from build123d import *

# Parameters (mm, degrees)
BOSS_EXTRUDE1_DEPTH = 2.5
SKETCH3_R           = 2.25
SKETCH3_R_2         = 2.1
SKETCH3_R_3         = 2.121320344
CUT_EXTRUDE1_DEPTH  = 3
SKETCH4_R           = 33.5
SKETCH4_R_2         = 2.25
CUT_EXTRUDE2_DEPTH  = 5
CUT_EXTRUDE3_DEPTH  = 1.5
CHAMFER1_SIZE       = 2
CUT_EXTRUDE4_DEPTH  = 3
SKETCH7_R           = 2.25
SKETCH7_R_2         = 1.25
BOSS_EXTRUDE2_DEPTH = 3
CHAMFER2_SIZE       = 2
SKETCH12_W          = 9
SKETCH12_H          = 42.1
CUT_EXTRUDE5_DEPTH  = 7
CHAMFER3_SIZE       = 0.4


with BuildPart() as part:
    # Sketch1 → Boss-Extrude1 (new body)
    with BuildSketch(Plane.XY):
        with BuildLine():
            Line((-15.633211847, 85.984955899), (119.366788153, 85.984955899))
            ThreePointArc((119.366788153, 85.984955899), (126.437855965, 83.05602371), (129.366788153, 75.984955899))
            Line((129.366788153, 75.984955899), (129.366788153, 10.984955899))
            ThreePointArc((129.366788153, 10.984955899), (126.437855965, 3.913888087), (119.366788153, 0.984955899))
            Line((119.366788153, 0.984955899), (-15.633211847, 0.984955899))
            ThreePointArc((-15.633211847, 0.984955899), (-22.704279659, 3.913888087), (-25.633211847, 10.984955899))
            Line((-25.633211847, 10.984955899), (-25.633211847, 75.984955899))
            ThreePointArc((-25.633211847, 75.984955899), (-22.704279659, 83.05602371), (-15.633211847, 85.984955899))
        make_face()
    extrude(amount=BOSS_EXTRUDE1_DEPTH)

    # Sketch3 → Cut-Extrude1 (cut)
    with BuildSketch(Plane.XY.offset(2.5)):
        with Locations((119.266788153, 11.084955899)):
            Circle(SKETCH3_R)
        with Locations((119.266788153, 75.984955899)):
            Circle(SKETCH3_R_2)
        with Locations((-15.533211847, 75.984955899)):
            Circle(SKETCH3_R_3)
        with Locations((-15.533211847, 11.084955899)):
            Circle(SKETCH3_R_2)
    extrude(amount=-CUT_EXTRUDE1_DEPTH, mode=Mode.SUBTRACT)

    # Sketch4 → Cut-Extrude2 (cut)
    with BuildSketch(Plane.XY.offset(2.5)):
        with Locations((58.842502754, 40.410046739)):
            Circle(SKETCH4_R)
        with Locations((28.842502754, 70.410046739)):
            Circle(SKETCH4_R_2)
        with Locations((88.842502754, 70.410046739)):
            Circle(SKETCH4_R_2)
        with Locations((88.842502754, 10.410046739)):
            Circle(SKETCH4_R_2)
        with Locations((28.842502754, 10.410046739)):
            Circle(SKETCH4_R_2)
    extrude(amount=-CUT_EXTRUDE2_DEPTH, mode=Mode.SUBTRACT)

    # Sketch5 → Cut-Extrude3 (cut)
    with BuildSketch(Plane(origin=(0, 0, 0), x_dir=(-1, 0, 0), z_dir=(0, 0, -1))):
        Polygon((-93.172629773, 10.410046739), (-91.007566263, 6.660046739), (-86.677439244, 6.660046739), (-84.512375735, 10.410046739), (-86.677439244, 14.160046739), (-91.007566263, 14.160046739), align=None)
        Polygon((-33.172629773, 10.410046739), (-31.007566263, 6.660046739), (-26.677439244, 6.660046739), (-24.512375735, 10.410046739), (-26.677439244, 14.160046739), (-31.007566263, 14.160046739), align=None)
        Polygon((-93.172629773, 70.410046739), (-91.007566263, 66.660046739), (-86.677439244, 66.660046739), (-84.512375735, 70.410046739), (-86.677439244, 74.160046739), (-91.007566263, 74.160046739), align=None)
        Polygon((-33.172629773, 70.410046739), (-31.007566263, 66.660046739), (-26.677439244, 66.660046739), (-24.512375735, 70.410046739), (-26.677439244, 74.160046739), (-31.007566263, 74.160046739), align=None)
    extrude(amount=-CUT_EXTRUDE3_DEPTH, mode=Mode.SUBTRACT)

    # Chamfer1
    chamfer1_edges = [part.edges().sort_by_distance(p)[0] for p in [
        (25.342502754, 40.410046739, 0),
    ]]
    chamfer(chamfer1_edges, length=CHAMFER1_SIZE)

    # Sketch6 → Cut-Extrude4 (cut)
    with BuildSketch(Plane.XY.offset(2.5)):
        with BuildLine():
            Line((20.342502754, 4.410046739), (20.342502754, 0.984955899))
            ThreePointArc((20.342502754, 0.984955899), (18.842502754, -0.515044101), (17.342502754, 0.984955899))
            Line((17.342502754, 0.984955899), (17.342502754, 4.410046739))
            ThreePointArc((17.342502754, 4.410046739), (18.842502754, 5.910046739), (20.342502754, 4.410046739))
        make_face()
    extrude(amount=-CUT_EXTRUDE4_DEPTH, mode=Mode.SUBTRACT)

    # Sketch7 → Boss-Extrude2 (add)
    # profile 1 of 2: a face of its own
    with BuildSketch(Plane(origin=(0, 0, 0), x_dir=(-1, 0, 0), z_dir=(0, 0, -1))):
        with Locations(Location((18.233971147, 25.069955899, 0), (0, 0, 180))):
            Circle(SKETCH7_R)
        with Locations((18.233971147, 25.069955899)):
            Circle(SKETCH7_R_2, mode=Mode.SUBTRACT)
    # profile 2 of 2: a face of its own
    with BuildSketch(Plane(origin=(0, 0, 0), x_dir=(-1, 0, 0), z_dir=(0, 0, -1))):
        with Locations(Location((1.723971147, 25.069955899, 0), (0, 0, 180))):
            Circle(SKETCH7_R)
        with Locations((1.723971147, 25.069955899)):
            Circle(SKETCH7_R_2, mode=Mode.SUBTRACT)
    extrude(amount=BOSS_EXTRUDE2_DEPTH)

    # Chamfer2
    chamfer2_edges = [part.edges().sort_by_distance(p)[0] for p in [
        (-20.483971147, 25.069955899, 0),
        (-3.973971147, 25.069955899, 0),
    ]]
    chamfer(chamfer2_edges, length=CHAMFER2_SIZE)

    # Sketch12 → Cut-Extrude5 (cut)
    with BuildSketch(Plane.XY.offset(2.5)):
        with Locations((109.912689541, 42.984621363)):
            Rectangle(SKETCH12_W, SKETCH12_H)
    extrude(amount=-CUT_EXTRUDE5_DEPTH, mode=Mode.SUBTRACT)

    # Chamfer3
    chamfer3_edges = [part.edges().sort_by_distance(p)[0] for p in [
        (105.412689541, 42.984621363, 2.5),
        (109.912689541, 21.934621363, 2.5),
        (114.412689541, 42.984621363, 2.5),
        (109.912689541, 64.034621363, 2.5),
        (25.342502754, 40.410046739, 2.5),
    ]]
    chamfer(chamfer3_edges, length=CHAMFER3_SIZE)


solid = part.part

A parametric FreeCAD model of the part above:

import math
import FreeCAD as App
import Part
import Sketcher

V = App.Vector
Q = App.Units.Quantity


def edges_at(feature, points):
    """Names of the edges that pass closest to the given points."""
    edges = feature.Shape.Edges
    near = lambda p: min(range(len(edges)), key=lambda i: edges[i].distToShape(Part.Vertex(*p))[0])
    return sorted({f"Edge{near(p) + 1}" for p in points})


def add_polygon(sketch, points):
    """Adds a closed chain of lines whose ends are joined by coincident constraints."""
    first, n = sketch.GeometryCount, len(points)
    for a, b in zip(points, points[1:] + points[:1]):
        sketch.addGeometry(Part.LineSegment(App.Vector(*a, 0), App.Vector(*b, 0)), False)
    for i in range(n):
        sketch.addConstraint(Sketcher.Constraint("Coincident", first + i, 2, first + (i + 1) % n, 1))

doc = App.newDocument("Part")
body = doc.addObject("PartDesign::Body", "Body")

# Sketch on XY plane
sketch1 = body.newObject("Sketcher::SketchObject", "Sketch")
sketch1.AttachmentSupport = (doc.getObject("XY_Plane"), [""])
sketch1.MapMode = "FlatFace"
sketch1.addGeometry(Part.LineSegment(V(119.366788, 85.984956, 0), V(-15.633212, 85.984956, 0)), False)
sketch1.addGeometry(Part.ArcOfCircle(Part.Circle(V(-15.633212, 75.984956, 0), V(0, 0, 1), 10), math.radians(90), math.radians(180)), False)
sketch1.addGeometry(Part.LineSegment(V(-25.633212, 75.984956, 0), V(-25.633212, 10.984956, 0)), False)
sketch1.addGeometry(Part.ArcOfCircle(Part.Circle(V(-15.633212, 10.984956, 0), V(0, 0, 1), 10), math.radians(180), math.radians(270)), False)
sketch1.addGeometry(Part.LineSegment(V(-15.633212, 0.984956, 0), V(119.366788, 0.984956, 0)), False)
sketch1.addGeometry(Part.ArcOfCircle(Part.Circle(V(119.366788, 10.984956, 0), V(0, 0, 1), 10), math.radians(-90), math.radians(0)), False)
sketch1.addGeometry(Part.LineSegment(V(129.366788, 10.984956, 0), V(129.366788, 75.984956, 0)), False)
sketch1.addGeometry(Part.ArcOfCircle(Part.Circle(V(119.366788, 75.984956, 0), V(0, 0, 1), 10), math.radians(0), math.radians(90)), False)
sketch1.addConstraint(Sketcher.Constraint("Tangent", 0, 2, 1, 1))
sketch1.addConstraint(Sketcher.Constraint("Tangent", 1, 2, 2, 1))
sketch1.addConstraint(Sketcher.Constraint("Tangent", 2, 2, 3, 1))
sketch1.addConstraint(Sketcher.Constraint("Tangent", 3, 2, 4, 1))
sketch1.addConstraint(Sketcher.Constraint("Tangent", 4, 2, 5, 1))
sketch1.addConstraint(Sketcher.Constraint("Tangent", 5, 2, 6, 1))
sketch1.addConstraint(Sketcher.Constraint("Tangent", 6, 2, 7, 1))
sketch1.addConstraint(Sketcher.Constraint("Tangent", 7, 2, 0, 1))
sketch1.addConstraint(Sketcher.Constraint("Horizontal", 0))
sketch1.addConstraint(Sketcher.Constraint("Vertical", 2))
sketch1.addConstraint(Sketcher.Constraint("Horizontal", 4))
sketch1.addConstraint(Sketcher.Constraint("Vertical", 6))
sketch1.addConstraint(Sketcher.Constraint("Equal", 1, 3))
sketch1.addConstraint(Sketcher.Constraint("Equal", 3, 5))
sketch1.addConstraint(Sketcher.Constraint("Equal", 5, 7))
sketch1.addConstraint(Sketcher.Constraint("Radius", 1, 10.0))
sketch1.addConstraint(Sketcher.Constraint("DistanceX", 0, 2, 0, 1, 135.0))
sketch1.addConstraint(Sketcher.Constraint("DistanceY", 2, 2, 2, 1, 65.0))
sketch1.addConstraint(Sketcher.Constraint("DistanceX", 1, 3, -1, 1, 15.633212))
sketch1.addConstraint(Sketcher.Constraint("DistanceY", -1, 1, 1, 3, 75.984956))
pad1 = body.newObject("PartDesign::Pad", "Pad")
pad1.Profile = sketch1
pad1.Length = 2.5

# Sketch on XY plane
sketch2 = body.newObject("Sketcher::SketchObject", "Sketch001")
sketch2.AttachmentSupport = (doc.getObject("XY_Plane"), [""])
sketch2.MapMode = "FlatFace"
sketch2.AttachmentOffset = App.Placement(V(0, 0, 2.5), App.Rotation())
sketch2.addGeometry(Part.Circle(V(119.266788, 11.084956, 0), V(0, 0, 1), 2.25), False)
sketch2.addGeometry(Part.Circle(V(119.266788, 75.984956, 0), V(0, 0, 1), 2.1), False)
sketch2.addGeometry(Part.Circle(V(-15.533212, 75.984956, 0), V(0, 0, 1), 2.12132), False)
sketch2.addGeometry(Part.Circle(V(-15.533212, 11.084956, 0), V(0, 0, 1), 2.1), False)
sketch2.addConstraint(Sketcher.Constraint("Equal", 1, 3))
sketch2.addConstraint(Sketcher.Constraint("Horizontal", 1, 3, 2, 3))
sketch2.addConstraint(Sketcher.Constraint("Horizontal", 0, 3, 3, 3))
sketch2.addConstraint(Sketcher.Constraint("Vertical", 0, 3, 1, 3))
sketch2.addConstraint(Sketcher.Constraint("Vertical", 2, 3, 3, 3))
sketch2.addConstraint(Sketcher.Constraint("Diameter", 0, 4.5))
sketch2.addConstraint(Sketcher.Constraint("Diameter", 1, 4.2))
sketch2.addConstraint(Sketcher.Constraint("DistanceY", 0, 3, 1, 3, 64.9))
sketch2.addConstraint(Sketcher.Constraint("DistanceX", 2, 3, 1, 3, 134.8))
sketch2.addConstraint(Sketcher.Constraint("Diameter", 2, 4.242641))
sketch2.addConstraint(Sketcher.Constraint("DistanceX", -1, 1, 0, 3, 119.266788))
sketch2.addConstraint(Sketcher.Constraint("DistanceY", -1, 1, 0, 3, 11.084956))
pocket1 = body.newObject("PartDesign::Pocket", "Pocket")
pocket1.Profile = sketch2
pocket1.Length = 3

# Sketch on XY plane
sketch3 = body.newObject("Sketcher::SketchObject", "Sketch002")
sketch3.AttachmentSupport = (doc.getObject("XY_Plane"), [""])
sketch3.MapMode = "FlatFace"
sketch3.AttachmentOffset = App.Placement(V(0, 0, 2.5), App.Rotation())
sketch3.addGeometry(Part.Circle(V(58.842503, 40.410047, 0), V(0, 0, 1), 33.5), False)
sketch3.addGeometry(Part.Circle(V(28.842503, 70.410047, 0), V(0, 0, 1), 2.25), False)
sketch3.addGeometry(Part.Circle(V(88.842503, 70.410047, 0), V(0, 0, 1), 2.25), False)
sketch3.addGeometry(Part.Circle(V(88.842503, 10.410047, 0), V(0, 0, 1), 2.25), False)
sketch3.addGeometry(Part.Circle(V(28.842503, 10.410047, 0), V(0, 0, 1), 2.25), False)
sketch3.addConstraint(Sketcher.Constraint("Equal", 1, 2))
sketch3.addConstraint(Sketcher.Constraint("Equal", 2, 3))
sketch3.addConstraint(Sketcher.Constraint("Equal", 3, 4))
sketch3.addConstraint(Sketcher.Constraint("Horizontal", 1, 3, 2, 3))
sketch3.addConstraint(Sketcher.Constraint("Horizontal", 3, 3, 4, 3))
sketch3.addConstraint(Sketcher.Constraint("Vertical", 2, 3, 3, 3))
sketch3.addConstraint(Sketcher.Constraint("Vertical", 1, 3, 4, 3))
sketch3.addConstraint(Sketcher.Constraint("Diameter", 0, 67.0))
sketch3.addConstraint(Sketcher.Constraint("Diameter", 1, 4.5))
sketch3.addConstraint(Sketcher.Constraint("DistanceX", 1, 3, 0, 3, 30.0))
sketch3.addConstraint(Sketcher.Constraint("DistanceY", 0, 3, 1, 3, 30.0))
sketch3.addConstraint(Sketcher.Constraint("DistanceX", 0, 3, 2, 3, 30.0))
sketch3.addConstraint(Sketcher.Constraint("DistanceY", 3, 3, 0, 3, 30.0))
sketch3.addConstraint(Sketcher.Constraint("DistanceX", -1, 1, 0, 3, 58.842503))
sketch3.addConstraint(Sketcher.Constraint("DistanceY", -1, 1, 0, 3, 40.410047))
pocket2 = body.newObject("PartDesign::Pocket", "Pocket001")
pocket2.Profile = sketch3
pocket2.Length = 5

# Sketch on XY plane
sketch4 = body.newObject("Sketcher::SketchObject", "Sketch003")
sketch4.AttachmentSupport = (doc.getObject("XY_Plane"), [""])
sketch4.MapMode = "FlatFace"
add_polygon(sketch4, [(93.17263, 10.410047), (91.007566, 6.660047), (86.677439, 6.660047), (84.512376, 10.410047), (86.677439, 14.160047), (91.007566, 14.160047)])  # lines 0-5
add_polygon(sketch4, [(33.17263, 10.410047), (31.007566, 6.660047), (26.677439, 6.660047), (24.512376, 10.410047), (26.677439, 14.160047), (31.007566, 14.160047)])  # lines 6-11
add_polygon(sketch4, [(93.17263, 70.410047), (91.007566, 66.660047), (86.677439, 66.660047), (84.512376, 70.410047), (86.677439, 74.160047), (91.007566, 74.160047)])  # lines 12-17
add_polygon(sketch4, [(33.17263, 70.410047), (31.007566, 66.660047), (26.677439, 66.660047), (24.512376, 70.410047), (26.677439, 74.160047), (31.007566, 74.160047)])  # lines 18-23
sketch4.addConstraint(Sketcher.Constraint("Horizontal", 1))
sketch4.addConstraint(Sketcher.Constraint("Horizontal", 4))
sketch4.addConstraint(Sketcher.Constraint("Horizontal", 7))
sketch4.addConstraint(Sketcher.Constraint("Horizontal", 10))
sketch4.addConstraint(Sketcher.Constraint("Horizontal", 13))
sketch4.addConstraint(Sketcher.Constraint("Horizontal", 16))
sketch4.addConstraint(Sketcher.Constraint("Horizontal", 19))
sketch4.addConstraint(Sketcher.Constraint("Horizontal", 22))
sketch4.addConstraint(Sketcher.Constraint("Parallel", 0, 3))
sketch4.addConstraint(Sketcher.Constraint("Parallel", 2, 5))
sketch4.addConstraint(Sketcher.Constraint("Parallel", 3, 6))
sketch4.addConstraint(Sketcher.Constraint("Parallel", 5, 8))
sketch4.addConstraint(Sketcher.Constraint("Parallel", 6, 9))
sketch4.addConstraint(Sketcher.Constraint("Parallel", 8, 11))
sketch4.addConstraint(Sketcher.Constraint("Parallel", 9, 12))
sketch4.addConstraint(Sketcher.Constraint("Parallel", 11, 14))
sketch4.addConstraint(Sketcher.Constraint("Parallel", 12, 15))
sketch4.addConstraint(Sketcher.Constraint("Parallel", 14, 17))
sketch4.addConstraint(Sketcher.Constraint("Parallel", 15, 18))
sketch4.addConstraint(Sketcher.Constraint("Parallel", 17, 20))
sketch4.addConstraint(Sketcher.Constraint("Parallel", 18, 21))
sketch4.addConstraint(Sketcher.Constraint("Parallel", 20, 23))
sketch4.addConstraint(Sketcher.Constraint("Horizontal", 2, 2, 5, 2))
sketch4.addConstraint(Sketcher.Constraint("Horizontal", 1, 2, 6, 2))
sketch4.addConstraint(Sketcher.Constraint("Horizontal", 5, 2, 8, 2))
sketch4.addConstraint(Sketcher.Constraint("Horizontal", 4, 2, 9, 2))
sketch4.addConstraint(Sketcher.Constraint("Horizontal", 8, 2, 11, 2))
sketch4.addConstraint(Sketcher.Constraint("Horizontal", 14, 2, 17, 2))
sketch4.addConstraint(Sketcher.Constraint("Horizontal", 13, 2, 18, 2))
sketch4.addConstraint(Sketcher.Constraint("Horizontal", 17, 2, 20, 2))
sketch4.addConstraint(Sketcher.Constraint("Horizontal", 16, 2, 21, 2))
sketch4.addConstraint(Sketcher.Constraint("Horizontal", 20, 2, 23, 2))
sketch4.addConstraint(Sketcher.Constraint("Vertical", 1, 2, 3, 2))
sketch4.addConstraint(Sketcher.Constraint("Vertical", 0, 2, 4, 2))
sketch4.addConstraint(Sketcher.Constraint("Vertical", 4, 2, 12, 2))
sketch4.addConstraint(Sketcher.Constraint("Vertical", 3, 2, 13, 2))
sketch4.addConstraint(Sketcher.Constraint("Vertical", 2, 2, 14, 2))
sketch4.addConstraint(Sketcher.Constraint("Vertical", 13, 2, 15, 2))
sketch4.addConstraint(Sketcher.Constraint("Vertical", 10, 2, 18, 2))
sketch4.addConstraint(Sketcher.Constraint("Vertical", 9, 2, 19, 2))
sketch4.addConstraint(Sketcher.Constraint("Equal", 4, 7))
sketch4.addConstraint(Sketcher.Constraint("Angle", 0, Q("-120 deg")))
sketch4.addConstraint(Sketcher.Constraint("DistanceX", 6, 2, 0, 2, 60.0))
sketch4.addConstraint(Sketcher.Constraint("DistanceY", 0, 2, 12, 2, 60.0))
sketch4.addConstraint(Sketcher.Constraint("DistanceY", 1, 2, 3, 2, 7.5))
sketch4.addConstraint(Sketcher.Constraint("DistanceX", 1, 2, 1, 1, 4.330127))
sketch4.addConstraint(Sketcher.Constraint("DistanceX", -1, 1, 1, 2, 86.677439))
sketch4.addConstraint(Sketcher.Constraint("DistanceY", -1, 1, 0, 2, 6.660047))
pocket3 = body.newObject("PartDesign::Pocket", "Pocket002")
pocket3.Profile = sketch4
pocket3.Length = 1.5
pocket3.Reversed = True
doc.recompute()

chamfer = body.newObject("PartDesign::Chamfer", "Chamfer")
chamfer.Base = (pocket3, edges_at(pocket3, [(25.343, 40.41, 0)]))
chamfer.Size = 2

# Sketch on XY plane
sketch5 = body.newObject("Sketcher::SketchObject", "Sketch004")
sketch5.AttachmentSupport = (doc.getObject("XY_Plane"), [""])
sketch5.MapMode = "FlatFace"
sketch5.AttachmentOffset = App.Placement(V(0, 0, 2.5), App.Rotation())
sketch5.addGeometry(Part.LineSegment(V(20.342503, 0.984956, 0), V(20.342503, 4.410047, 0)), False)
sketch5.addGeometry(Part.ArcOfCircle(Part.Circle(V(18.842503, 4.410047, 0), V(0, 0, 1), 1.5), math.radians(0), math.radians(180)), False)
sketch5.addGeometry(Part.LineSegment(V(17.342503, 4.410047, 0), V(17.342503, 0.984956, 0)), False)
sketch5.addGeometry(Part.ArcOfCircle(Part.Circle(V(18.842503, 0.984956, 0), V(0, 0, 1), 1.5), math.radians(180), math.radians(360)), False)
sketch5.addConstraint(Sketcher.Constraint("Tangent", 0, 2, 1, 1))
sketch5.addConstraint(Sketcher.Constraint("Tangent", 1, 2, 2, 1))
sketch5.addConstraint(Sketcher.Constraint("Tangent", 2, 2, 3, 1))
sketch5.addConstraint(Sketcher.Constraint("Tangent", 3, 2, 0, 1))
sketch5.addConstraint(Sketcher.Constraint("Vertical", 0))
sketch5.addConstraint(Sketcher.Constraint("Vertical", 2))
sketch5.addConstraint(Sketcher.Constraint("Radius", 1, 1.5))
sketch5.addConstraint(Sketcher.Constraint("DistanceY", 0, 1, 0, 2, 3.425091))
sketch5.addConstraint(Sketcher.Constraint("DistanceX", -1, 1, 1, 3, 18.842503))
sketch5.addConstraint(Sketcher.Constraint("DistanceY", -1, 1, 1, 3, 4.410047))
pocket4 = body.newObject("PartDesign::Pocket", "Pocket003")
pocket4.Profile = sketch5
pocket4.Length = 3

# Sketch on XY plane
sketch6 = body.newObject("Sketcher::SketchObject", "Sketch005")
sketch6.AttachmentSupport = (doc.getObject("XY_Plane"), [""])
sketch6.MapMode = "FlatFace"
sketch6.addGeometry(Part.Circle(V(-18.233971, 25.069956, 0), V(0, 0, 1), 2.25), False)
sketch6.addGeometry(Part.Circle(V(-18.233971, 25.069956, 0), V(0, 0, 1), 1.25), False)
sketch6.addGeometry(Part.Circle(V(-1.723971, 25.069956, 0), V(0, 0, 1), 2.25), False)
sketch6.addGeometry(Part.Circle(V(-1.723971, 25.069956, 0), V(0, 0, 1), 1.25), False)
sketch6.addConstraint(Sketcher.Constraint("Coincident", 1, 3, 0, 3))
sketch6.addConstraint(Sketcher.Constraint("Coincident", 3, 3, 2, 3))
sketch6.addConstraint(Sketcher.Constraint("Equal", 0, 2))
sketch6.addConstraint(Sketcher.Constraint("Equal", 1, 3))
sketch6.addConstraint(Sketcher.Constraint("Horizontal", 1, 3, 2, 3))
sketch6.addConstraint(Sketcher.Constraint("Diameter", 0, 4.5))
sketch6.addConstraint(Sketcher.Constraint("Diameter", 1, 2.5))
sketch6.addConstraint(Sketcher.Constraint("DistanceX", 0, 3, 2, 3, 16.51))
sketch6.addConstraint(Sketcher.Constraint("DistanceX", 0, 3, -1, 1, 18.233971))
sketch6.addConstraint(Sketcher.Constraint("DistanceY", -1, 1, 0, 3, 25.069956))
pad2 = body.newObject("PartDesign::Pad", "Pad001")
pad2.Profile = sketch6
pad2.Length = 3
pad2.Reversed = True
doc.recompute()

chamfer2 = body.newObject("PartDesign::Chamfer", "Chamfer001")
chamfer2.Base = (pad2, edges_at(pad2, [(-20.484, 25.07, 0), (-3.974, 25.07, 0)]))
chamfer2.Size = 2

# Sketch on XY plane
sketch7 = body.newObject("Sketcher::SketchObject", "Sketch006")
sketch7.AttachmentSupport = (doc.getObject("XY_Plane"), [""])
sketch7.MapMode = "FlatFace"
sketch7.AttachmentOffset = App.Placement(V(0, 0, 2.5), App.Rotation())
add_polygon(sketch7, [(105.41269, 64.034621), (105.41269, 21.934621), (114.41269, 21.934621), (114.41269, 64.034621)])  # lines 0-3
sketch7.addConstraint(Sketcher.Constraint("Vertical", 0))
sketch7.addConstraint(Sketcher.Constraint("Horizontal", 1))
sketch7.addConstraint(Sketcher.Constraint("Vertical", 2))
sketch7.addConstraint(Sketcher.Constraint("Horizontal", 3))
sketch7.addConstraint(Sketcher.Constraint("DistanceX", 1, 1, 1, 2, 9.0))
sketch7.addConstraint(Sketcher.Constraint("DistanceY", 0, 2, 0, 1, 42.1))
sketch7.addConstraint(Sketcher.Constraint("DistanceX", -1, 1, 0, 2, 105.41269))
sketch7.addConstraint(Sketcher.Constraint("DistanceY", -1, 1, 0, 2, 21.934621))
pocket5 = body.newObject("PartDesign::Pocket", "Pocket004")
pocket5.Profile = sketch7
pocket5.Length = 7
doc.recompute()

chamfer3 = body.newObject("PartDesign::Chamfer", "Chamfer002")
chamfer3.Base = (pocket5, edges_at(pocket5, [
    (105.413, 42.985, 2.5),
    (109.913, 21.935, 2.5),
    (114.413, 42.985, 2.5),
    (109.913, 64.035, 2.5),
    (25.343, 40.41, 2.5),
]))
chamfer3.Size = 0.4

doc.recompute()
